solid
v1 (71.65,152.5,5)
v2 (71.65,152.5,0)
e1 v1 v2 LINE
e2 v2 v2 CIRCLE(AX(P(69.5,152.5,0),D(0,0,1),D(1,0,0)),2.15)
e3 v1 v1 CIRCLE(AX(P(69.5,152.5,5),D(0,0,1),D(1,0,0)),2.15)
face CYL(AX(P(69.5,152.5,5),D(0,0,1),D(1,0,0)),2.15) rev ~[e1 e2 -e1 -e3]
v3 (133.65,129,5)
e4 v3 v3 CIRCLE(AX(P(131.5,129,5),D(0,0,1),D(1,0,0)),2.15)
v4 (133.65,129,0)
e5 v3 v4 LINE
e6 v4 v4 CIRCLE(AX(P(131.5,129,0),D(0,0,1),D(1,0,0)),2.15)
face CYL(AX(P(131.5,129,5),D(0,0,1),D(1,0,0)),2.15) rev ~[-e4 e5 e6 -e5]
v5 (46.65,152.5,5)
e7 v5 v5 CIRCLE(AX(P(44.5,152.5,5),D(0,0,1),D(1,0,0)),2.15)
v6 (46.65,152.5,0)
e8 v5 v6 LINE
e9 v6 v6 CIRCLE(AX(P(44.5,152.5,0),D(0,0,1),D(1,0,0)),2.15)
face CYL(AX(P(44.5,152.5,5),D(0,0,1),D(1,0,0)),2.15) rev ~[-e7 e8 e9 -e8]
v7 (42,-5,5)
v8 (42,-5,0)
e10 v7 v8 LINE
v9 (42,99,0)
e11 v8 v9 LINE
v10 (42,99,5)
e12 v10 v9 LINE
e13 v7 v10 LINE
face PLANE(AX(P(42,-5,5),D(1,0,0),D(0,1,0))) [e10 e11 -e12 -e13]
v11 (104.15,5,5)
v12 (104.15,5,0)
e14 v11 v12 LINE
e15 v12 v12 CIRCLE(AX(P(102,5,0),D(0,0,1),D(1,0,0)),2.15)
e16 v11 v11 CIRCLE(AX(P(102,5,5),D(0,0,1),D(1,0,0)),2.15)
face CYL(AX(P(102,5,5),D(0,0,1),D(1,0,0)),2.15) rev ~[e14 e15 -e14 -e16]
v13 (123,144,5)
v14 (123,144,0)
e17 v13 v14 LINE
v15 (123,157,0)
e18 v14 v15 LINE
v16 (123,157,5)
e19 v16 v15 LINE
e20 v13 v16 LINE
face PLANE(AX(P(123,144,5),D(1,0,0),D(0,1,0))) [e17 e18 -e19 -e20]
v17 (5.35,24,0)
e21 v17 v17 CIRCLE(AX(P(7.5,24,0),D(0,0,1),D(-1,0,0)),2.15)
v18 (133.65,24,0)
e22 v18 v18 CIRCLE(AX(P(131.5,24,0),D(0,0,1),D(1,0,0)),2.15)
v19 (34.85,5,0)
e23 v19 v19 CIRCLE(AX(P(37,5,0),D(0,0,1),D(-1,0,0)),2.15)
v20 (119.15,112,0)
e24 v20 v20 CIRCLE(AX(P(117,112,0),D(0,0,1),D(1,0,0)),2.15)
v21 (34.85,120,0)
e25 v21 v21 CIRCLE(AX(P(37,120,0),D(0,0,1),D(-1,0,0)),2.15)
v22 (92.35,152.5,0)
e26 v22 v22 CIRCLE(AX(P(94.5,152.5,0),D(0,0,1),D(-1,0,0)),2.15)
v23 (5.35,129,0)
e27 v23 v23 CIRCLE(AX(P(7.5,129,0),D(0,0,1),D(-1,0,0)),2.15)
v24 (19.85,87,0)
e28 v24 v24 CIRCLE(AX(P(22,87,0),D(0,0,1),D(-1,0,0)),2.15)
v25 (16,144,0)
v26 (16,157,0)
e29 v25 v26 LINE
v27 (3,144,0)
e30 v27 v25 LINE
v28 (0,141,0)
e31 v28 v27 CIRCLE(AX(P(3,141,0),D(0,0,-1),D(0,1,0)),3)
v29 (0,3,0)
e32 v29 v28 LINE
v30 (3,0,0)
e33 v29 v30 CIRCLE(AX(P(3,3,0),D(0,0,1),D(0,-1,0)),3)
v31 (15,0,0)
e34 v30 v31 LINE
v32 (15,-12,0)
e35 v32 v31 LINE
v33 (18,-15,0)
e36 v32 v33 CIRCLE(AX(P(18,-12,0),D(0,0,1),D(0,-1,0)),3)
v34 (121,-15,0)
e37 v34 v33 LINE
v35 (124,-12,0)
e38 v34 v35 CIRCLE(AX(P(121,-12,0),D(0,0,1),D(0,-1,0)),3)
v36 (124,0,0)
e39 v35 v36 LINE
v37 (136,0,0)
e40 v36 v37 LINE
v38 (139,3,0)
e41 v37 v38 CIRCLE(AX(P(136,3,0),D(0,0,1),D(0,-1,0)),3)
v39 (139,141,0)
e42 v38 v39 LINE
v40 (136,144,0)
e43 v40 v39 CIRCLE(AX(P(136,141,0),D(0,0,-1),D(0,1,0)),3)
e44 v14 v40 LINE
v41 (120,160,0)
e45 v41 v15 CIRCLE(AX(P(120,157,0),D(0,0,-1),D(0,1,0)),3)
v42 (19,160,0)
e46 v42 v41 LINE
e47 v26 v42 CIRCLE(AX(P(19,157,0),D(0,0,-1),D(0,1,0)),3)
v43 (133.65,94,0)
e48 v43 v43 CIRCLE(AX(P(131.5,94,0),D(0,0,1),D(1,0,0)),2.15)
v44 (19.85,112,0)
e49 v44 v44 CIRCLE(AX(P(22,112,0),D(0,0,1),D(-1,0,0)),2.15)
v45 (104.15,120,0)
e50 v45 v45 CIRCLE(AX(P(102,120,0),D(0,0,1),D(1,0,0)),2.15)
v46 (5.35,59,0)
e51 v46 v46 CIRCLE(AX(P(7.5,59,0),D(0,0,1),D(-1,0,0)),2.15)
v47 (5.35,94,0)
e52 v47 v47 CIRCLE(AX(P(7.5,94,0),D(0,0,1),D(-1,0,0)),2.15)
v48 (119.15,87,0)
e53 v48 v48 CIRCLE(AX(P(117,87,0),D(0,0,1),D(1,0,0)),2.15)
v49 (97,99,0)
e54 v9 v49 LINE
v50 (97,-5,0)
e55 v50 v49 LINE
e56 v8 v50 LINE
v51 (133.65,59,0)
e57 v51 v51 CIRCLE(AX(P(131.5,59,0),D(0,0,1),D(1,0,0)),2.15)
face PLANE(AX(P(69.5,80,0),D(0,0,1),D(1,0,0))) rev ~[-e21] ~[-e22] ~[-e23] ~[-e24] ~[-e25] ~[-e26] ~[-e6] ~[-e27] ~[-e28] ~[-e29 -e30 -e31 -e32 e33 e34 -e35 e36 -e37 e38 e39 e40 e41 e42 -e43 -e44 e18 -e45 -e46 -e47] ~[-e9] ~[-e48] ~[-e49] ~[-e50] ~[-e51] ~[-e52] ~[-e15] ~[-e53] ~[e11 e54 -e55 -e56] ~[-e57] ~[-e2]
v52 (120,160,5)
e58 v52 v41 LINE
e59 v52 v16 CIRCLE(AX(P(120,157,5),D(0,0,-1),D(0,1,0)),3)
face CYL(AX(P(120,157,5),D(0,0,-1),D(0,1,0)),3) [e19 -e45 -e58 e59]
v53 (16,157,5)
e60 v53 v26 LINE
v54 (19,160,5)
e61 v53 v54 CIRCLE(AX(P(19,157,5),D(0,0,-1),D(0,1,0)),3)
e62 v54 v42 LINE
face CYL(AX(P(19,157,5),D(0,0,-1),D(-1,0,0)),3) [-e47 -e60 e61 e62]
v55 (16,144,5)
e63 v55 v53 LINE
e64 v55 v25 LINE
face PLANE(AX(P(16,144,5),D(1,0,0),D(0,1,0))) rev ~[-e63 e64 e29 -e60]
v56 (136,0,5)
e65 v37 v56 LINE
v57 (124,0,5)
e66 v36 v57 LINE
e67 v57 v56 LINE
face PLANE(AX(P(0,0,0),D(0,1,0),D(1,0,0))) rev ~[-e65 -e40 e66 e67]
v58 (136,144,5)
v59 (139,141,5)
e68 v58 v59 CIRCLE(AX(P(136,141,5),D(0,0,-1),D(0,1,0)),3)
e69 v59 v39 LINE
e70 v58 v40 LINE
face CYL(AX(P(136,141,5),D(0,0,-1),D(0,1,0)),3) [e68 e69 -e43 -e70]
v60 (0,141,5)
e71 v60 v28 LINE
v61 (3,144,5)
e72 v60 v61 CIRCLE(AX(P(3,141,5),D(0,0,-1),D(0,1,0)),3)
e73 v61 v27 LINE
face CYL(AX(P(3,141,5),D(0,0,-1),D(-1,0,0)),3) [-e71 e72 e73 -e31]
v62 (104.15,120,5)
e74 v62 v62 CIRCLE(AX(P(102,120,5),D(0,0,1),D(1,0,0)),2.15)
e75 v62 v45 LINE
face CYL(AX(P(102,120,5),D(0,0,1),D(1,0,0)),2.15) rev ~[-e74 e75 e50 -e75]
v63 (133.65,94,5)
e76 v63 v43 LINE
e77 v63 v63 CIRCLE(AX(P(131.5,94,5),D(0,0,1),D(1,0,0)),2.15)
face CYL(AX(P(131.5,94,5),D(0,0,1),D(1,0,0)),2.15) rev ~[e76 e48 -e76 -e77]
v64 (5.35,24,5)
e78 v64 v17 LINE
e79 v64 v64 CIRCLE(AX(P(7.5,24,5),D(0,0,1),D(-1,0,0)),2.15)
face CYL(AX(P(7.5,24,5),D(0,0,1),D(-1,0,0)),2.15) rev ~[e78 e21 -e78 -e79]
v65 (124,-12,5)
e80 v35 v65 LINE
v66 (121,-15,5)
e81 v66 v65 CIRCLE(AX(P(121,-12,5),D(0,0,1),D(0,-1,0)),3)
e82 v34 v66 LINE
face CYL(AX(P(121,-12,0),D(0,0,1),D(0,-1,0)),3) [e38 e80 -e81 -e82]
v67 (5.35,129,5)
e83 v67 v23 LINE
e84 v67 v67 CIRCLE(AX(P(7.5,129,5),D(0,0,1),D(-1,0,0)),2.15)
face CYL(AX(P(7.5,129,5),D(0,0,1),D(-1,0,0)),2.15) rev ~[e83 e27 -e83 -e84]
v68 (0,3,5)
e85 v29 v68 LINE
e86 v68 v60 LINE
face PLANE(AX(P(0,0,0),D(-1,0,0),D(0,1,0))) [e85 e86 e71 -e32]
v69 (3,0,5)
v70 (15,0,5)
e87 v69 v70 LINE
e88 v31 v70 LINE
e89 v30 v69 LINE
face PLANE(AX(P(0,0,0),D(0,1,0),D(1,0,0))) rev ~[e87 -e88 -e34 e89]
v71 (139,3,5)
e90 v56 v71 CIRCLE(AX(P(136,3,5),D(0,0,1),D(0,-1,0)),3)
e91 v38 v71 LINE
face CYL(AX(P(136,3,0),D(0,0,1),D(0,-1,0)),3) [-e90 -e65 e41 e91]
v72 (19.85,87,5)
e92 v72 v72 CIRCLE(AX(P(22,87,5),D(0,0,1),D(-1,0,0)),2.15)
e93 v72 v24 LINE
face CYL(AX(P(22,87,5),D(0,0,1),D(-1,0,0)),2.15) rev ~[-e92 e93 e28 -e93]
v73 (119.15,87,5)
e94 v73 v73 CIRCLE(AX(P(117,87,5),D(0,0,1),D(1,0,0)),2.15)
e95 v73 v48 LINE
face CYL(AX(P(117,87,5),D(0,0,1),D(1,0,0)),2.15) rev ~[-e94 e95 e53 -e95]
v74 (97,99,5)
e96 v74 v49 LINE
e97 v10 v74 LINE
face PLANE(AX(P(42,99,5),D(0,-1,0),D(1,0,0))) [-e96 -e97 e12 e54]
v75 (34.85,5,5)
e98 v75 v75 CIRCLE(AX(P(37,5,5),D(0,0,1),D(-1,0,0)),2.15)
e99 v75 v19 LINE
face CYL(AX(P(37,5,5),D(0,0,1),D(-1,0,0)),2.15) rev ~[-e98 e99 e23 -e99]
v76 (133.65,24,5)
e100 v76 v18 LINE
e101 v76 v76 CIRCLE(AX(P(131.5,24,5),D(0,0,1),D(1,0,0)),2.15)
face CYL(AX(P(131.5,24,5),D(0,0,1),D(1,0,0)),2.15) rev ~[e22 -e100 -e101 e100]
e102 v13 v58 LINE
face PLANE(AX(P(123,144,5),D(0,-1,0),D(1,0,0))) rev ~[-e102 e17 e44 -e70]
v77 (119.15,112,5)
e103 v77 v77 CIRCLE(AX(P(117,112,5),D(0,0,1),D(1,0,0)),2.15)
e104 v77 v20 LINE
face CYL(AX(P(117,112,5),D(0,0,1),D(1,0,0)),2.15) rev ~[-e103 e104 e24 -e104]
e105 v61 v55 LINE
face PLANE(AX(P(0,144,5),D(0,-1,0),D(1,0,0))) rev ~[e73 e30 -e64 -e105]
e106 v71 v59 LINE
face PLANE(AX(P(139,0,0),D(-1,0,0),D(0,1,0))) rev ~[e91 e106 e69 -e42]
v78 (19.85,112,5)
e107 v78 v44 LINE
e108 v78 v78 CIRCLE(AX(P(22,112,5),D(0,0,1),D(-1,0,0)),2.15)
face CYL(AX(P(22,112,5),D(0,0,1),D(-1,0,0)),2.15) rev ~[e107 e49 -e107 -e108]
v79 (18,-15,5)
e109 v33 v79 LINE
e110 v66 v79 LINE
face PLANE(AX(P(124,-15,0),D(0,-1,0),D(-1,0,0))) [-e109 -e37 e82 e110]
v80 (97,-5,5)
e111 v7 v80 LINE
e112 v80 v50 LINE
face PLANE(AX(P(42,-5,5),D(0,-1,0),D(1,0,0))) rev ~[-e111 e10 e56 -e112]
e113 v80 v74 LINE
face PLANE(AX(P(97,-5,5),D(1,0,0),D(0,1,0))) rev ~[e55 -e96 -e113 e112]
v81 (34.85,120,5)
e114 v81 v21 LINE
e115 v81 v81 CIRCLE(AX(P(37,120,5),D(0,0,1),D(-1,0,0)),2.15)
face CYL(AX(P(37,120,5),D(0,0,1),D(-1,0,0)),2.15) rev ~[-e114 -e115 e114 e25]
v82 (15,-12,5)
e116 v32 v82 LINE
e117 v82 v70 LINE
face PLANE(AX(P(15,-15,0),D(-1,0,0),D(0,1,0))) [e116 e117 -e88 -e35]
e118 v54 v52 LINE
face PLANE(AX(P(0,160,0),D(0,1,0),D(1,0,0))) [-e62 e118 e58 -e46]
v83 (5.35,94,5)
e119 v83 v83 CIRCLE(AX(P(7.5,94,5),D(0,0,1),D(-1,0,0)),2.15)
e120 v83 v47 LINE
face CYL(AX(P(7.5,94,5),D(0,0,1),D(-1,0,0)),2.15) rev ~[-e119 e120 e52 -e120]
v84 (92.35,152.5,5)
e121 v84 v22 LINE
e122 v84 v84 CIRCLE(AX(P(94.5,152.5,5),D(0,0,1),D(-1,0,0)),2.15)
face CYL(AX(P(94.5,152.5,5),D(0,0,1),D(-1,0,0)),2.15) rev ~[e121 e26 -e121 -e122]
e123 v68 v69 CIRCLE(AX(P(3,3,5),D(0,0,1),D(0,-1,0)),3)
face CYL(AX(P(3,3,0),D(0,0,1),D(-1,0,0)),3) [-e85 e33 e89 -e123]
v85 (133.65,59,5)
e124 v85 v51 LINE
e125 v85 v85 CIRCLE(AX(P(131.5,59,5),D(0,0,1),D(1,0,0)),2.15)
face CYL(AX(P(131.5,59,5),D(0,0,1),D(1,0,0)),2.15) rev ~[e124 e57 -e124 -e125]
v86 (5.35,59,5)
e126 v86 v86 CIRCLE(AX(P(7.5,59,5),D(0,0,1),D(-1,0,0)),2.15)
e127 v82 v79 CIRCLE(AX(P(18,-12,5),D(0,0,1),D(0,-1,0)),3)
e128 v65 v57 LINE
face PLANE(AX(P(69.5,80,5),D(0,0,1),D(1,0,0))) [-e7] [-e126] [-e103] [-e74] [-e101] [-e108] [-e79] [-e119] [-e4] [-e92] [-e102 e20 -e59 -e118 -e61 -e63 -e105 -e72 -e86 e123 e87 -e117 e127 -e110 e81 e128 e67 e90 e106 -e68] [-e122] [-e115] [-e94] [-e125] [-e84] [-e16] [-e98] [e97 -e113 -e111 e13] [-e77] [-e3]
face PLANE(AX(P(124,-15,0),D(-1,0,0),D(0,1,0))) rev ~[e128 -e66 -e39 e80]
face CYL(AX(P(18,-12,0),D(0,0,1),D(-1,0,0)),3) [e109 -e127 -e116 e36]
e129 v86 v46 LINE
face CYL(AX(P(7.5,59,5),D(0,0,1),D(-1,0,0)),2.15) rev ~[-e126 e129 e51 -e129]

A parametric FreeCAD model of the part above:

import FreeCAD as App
import Part
import Sketcher

V = App.Vector


def edges_at(feature, points):
    """Names of the edges that pass closest to the given points."""
    edges = feature.Shape.Edges
    near = lambda p: min(range(len(edges)), key=lambda i: edges[i].distToShape(Part.Vertex(*p))[0])
    return sorted({f"Edge{near(p) + 1}" for p in points})


def add_polygon(sketch, points):
    """Adds a closed chain of lines whose ends are joined by coincident constraints."""
    first, n = sketch.GeometryCount, len(points)
    for a, b in zip(points, points[1:] + points[:1]):
        sketch.addGeometry(Part.LineSegment(App.Vector(*a, 0), App.Vector(*b, 0)), False)
    for i in range(n):
        sketch.addConstraint(Sketcher.Constraint("Coincident", first + i, 2, first + (i + 1) % n, 1))

doc = App.newDocument("Part")
body = doc.addObject("PartDesign::Body", "Body")

# Sketch on XY plane
sketch1 = body.newObject("Sketcher::SketchObject", "Sketch")
sketch1.AttachmentSupport = (doc.getObject("XY_Plane"), [""])
sketch1.MapMode = "FlatFace"
add_polygon(sketch1, [(0, 160), (0, 0), (139, 0), (139, 160)])  # lines 0-3
sketch1.addConstraint(Sketcher.Constraint("Vertical", 0))
sketch1.addConstraint(Sketcher.Constraint("Horizontal", 1))
sketch1.addConstraint(Sketcher.Constraint("Vertical", 2))
sketch1.addConstraint(Sketcher.Constraint("Horizontal", 3))
sketch1.addConstraint(Sketcher.Constraint("Coincident", 0, 2, -1, 1))
sketch1.addConstraint(Sketcher.Constraint("DistanceX", 1, 1, 1, 2, 139.0))
sketch1.addConstraint(Sketcher.Constraint("DistanceY", 0, 2, 0, 1, 160.0))
pad1 = body.newObject("PartDesign::Pad", "Pad")
pad1.Profile = sketch1
pad1.Length = 5

# Sketch on XY plane
sketch2 = body.newObject("Sketcher::SketchObject", "Sketch001")
sketch2.AttachmentSupport = (doc.getObject("XY_Plane"), [""])
sketch2.MapMode = "FlatFace"
sketch2.AttachmentOffset = App.Placement(V(0, 0, 5), App.Rotation())
add_polygon(sketch2, [(123, 160), (123, 144), (139, 144), (139, 160)])  # lines 0-3
add_polygon(sketch2, [(0, 160), (0, 144), (16, 144), (16, 160)])  # lines 4-7
sketch2.addConstraint(Sketcher.Constraint("Vertical", 0))
sketch2.addConstraint(Sketcher.Constraint("Horizontal", 1))
sketch2.addConstraint(Sketcher.Constraint("Vertical", 2))
sketch2.addConstraint(Sketcher.Constraint("Horizontal", 3))
sketch2.addConstraint(Sketcher.Constraint("Vertical", 4))
sketch2.addConstraint(Sketcher.Constraint("Horizontal", 5))
sketch2.addConstraint(Sketcher.Constraint("Vertical", 6))
sketch2.addConstraint(Sketcher.Constraint("Horizontal", 7))
sketch2.addConstraint(Sketcher.Constraint("PointOnObject", 4, 2, -2))
sketch2.addConstraint(Sketcher.Constraint("Horizontal", 1, 2, 4, 2))
sketch2.addConstraint(Sketcher.Constraint("Horizontal", 3, 2, 6, 2))
sketch2.addConstraint(Sketcher.Constraint("Equal", 3, 5))
sketch2.addConstraint(Sketcher.Constraint("Equal", 7, 0))
sketch2.addConstraint(Sketcher.Constraint("DistanceX", 1, 1, 1, 2, 16.0))
sketch2.addConstraint(Sketcher.Constraint("DistanceX", -1, 1, 0, 2, 123.0))
sketch2.addConstraint(Sketcher.Constraint("DistanceY", -1, 1, 0, 2, 144.0))
pocket1 = body.newObject("PartDesign::Pocket", "Pocket")
pocket1.Profile = sketch2
pocket1.Length = 5

# Sketch on XY plane
sketch3 = body.newObject("Sketcher::SketchObject", "Sketch002")
sketch3.AttachmentSupport = (doc.getObject("XY_Plane"), [""])
sketch3.MapMode = "FlatFace"
sketch3.AttachmentOffset = App.Placement(V(0, 0, 5), App.Rotation())
sketch3.addGeometry(Part.Circle(V(69.5, 152.5, 0), V(0, 0, 1), 2.15), False)
sketch3.addGeometry(Part.Circle(V(44.5, 152.5, 0), V(0, 0, 1), 2.15), False)
sketch3.addGeometry(Part.Circle(V(94.5, 152.5, 0), V(0, 0, 1), 2.15), False)
sketch3.addConstraint(Sketcher.Constraint("Equal", 0, 1))
sketch3.addConstraint(Sketcher.Constraint("Equal", 1, 2))
sketch3.addConstraint(Sketcher.Constraint("Horizontal", 0, 3, 1, 3))
sketch3.addConstraint(Sketcher.Constraint("Horizontal", 1, 3, 2, 3))
sketch3.addConstraint(Sketcher.Constraint("Diameter", 0, 4.3))
sketch3.addConstraint(Sketcher.Constraint("DistanceX", 1, 3, 0, 3, 25.0))
sketch3.addConstraint(Sketcher.Constraint("DistanceX", 0, 3, 2, 3, 25.0))
sketch3.addConstraint(Sketcher.Constraint("DistanceX", -1, 1, 0, 3, 69.5))
sketch3.addConstraint(Sketcher.Constraint("DistanceY", -1, 1, 0, 3, 152.5))
pocket2 = body.newObject("PartDesign::Pocket", "Pocket001")
pocket2.Profile = sketch3
pocket2.Length = 5

# Sketch on XY plane
sketch4 = body.newObject("Sketcher::SketchObject", "Sketch003")
sketch4.AttachmentSupport = (doc.getObject("XY_Plane"), [""])
sketch4.MapMode = "FlatFace"
sketch4.AttachmentOffset = App.Placement(V(0, 0, 5), App.Rotation())
sketch4.addGeometry(Part.Circle(V(131.5, 129, 0), V(0, 0, 1), 2.15), False)
sketch4.addGeometry(Part.Circle(V(7.5, 129, 0), V(0, 0, 1), 2.15), False)
sketch4.addConstraint(Sketcher.Constraint("Equal", 0, 1))
sketch4.addConstraint(Sketcher.Constraint("Horizontal", 0, 3, 1, 3))
sketch4.addConstraint(Sketcher.Constraint("Diameter", 0, 4.3))
sketch4.addConstraint(Sketcher.Constraint("DistanceY", -1, 1, 0, 3, 129.0))
sketch4.addConstraint(Sketcher.Constraint("DistanceX", 1, 3, 0, 3, 124.0))
sketch4.addConstraint(Sketcher.Constraint("DistanceX", -1, 1, 0, 3, 131.5))
pocket3 = body.newObject("PartDesign::Pocket", "Pocket002")
pocket3.Profile = sketch4
pocket3.Length = 5
doc.recompute()

linearpattern = body.newObject("PartDesign::LinearPattern", "LinearPattern")
linearpattern.Originals = [pocket3]
linearpattern.Direction = (doc.getObject("Y_Axis"), [""])
linearpattern.Mode = "offset"
linearpattern.Offset = 35
linearpattern.Occurrences = 4
linearpattern.Reversed = True
body.Tip = linearpattern

# Sketch on XY plane
sketch5 = body.newObject("Sketcher::SketchObject", "Sketch004")
sketch5.AttachmentSupport = (doc.getObject("XY_Plane"), [""])
sketch5.MapMode = "FlatFace"
sketch5.AttachmentOffset = App.Placement(V(0, 0, 5), App.Rotation())
sketch5.addGeometry(Part.Circle(V(117, 112, 0), V(0, 0, 1), 2.15), False)
sketch5.addGeometry(Part.Circle(V(117, 87, 0), V(0, 0, 1), 2.15), False)
sketch5.addGeometry(Part.Circle(V(22, 87, 0), V(0, 0, 1), 2.15), False)
sketch5.addGeometry(Part.Circle(V(22, 112, 0), V(0, 0, 1), 2.15), False)
sketch5.addConstraint(Sketcher.Constraint("Equal", 0, 1))
sketch5.addConstraint(Sketcher.Constraint("Equal", 1, 2))
sketch5.addConstraint(Sketcher.Constraint("Equal", 2, 3))
sketch5.addConstraint(Sketcher.Constraint("Horizontal", 1, 3, 2, 3))
sketch5.addConstraint(Sketcher.Constraint("Horizontal", 0, 3, 3, 3))
sketch5.addConstraint(Sketcher.Constraint("Vertical", 0, 3, 1, 3))
sketch5.addConstraint(Sketcher.Constraint("Vertical", 2, 3, 3, 3))
sketch5.addConstraint(Sketcher.Constraint("Diameter", 0, 4.3))
sketch5.addConstraint(Sketcher.Constraint("DistanceX", -1, 1, 0, 3, 117.0))
sketch5.addConstraint(Sketcher.Constraint("DistanceY", -1, 1, 0, 3, 112.0))
sketch5.addConstraint(Sketcher.Constraint("DistanceY", -1, 1, 1, 3, 87.0))
sketch5.addConstraint(Sketcher.Constraint("DistanceX", -1, 1, 2, 3, 22.0))
pocket4 = body.newObject("PartDesign::Pocket", "Pocket003")
pocket4.Profile = sketch5
pocket4.Length = 5

# Sketch on XY plane
sketch6 = body.newObject("Sketcher::SketchObject", "Sketch005")
sketch6.AttachmentSupport = (doc.getObject("XY_Plane"), [""])
sketch6.MapMode = "FlatFace"
add_polygon(sketch6, [(124, 0), (124, -15), (15, -15), (15, 0)])  # lines 0-3
sketch6.addConstraint(Sketcher.Constraint("Vertical", 0))
sketch6.addConstraint(Sketcher.Constraint("Horizontal", 1))
sketch6.addConstraint(Sketcher.Constraint("Vertical", 2))
sketch6.addConstraint(Sketcher.Constraint("Horizontal", 3))
sketch6.addConstraint(Sketcher.Constraint("PointOnObject", 2, 2, -1))
sketch6.addConstraint(Sketcher.Constraint("DistanceX", 1, 2, 1, 1, 109.0))
sketch6.addConstraint(Sketcher.Constraint("DistanceY", 0, 2, 0, 1, 15.0))
sketch6.addConstraint(Sketcher.Constraint("DistanceX", -1, 1, 0, 2, 124.0))
pad2 = body.newObject("PartDesign::Pad", "Pad001")
pad2.Profile = sketch6
pad2.Length = 5

# Sketch on XY plane
sketch7 = body.newObject("Sketcher::SketchObject", "Sketch006")
sketch7.AttachmentSupport = (doc.getObject("XY_Plane"), [""])
sketch7.MapMode = "FlatFace"
sketch7.AttachmentOffset = App.Placement(V(0, 0, 5), App.Rotation())
add_polygon(sketch7, [(42, 99), (42, -5), (97, -5), (97, 99)])  # lines 0-3
sketch7.addConstraint(Sketcher.Constraint("Vertical", 0))
sketch7.addConstraint(Sketcher.Constraint("Horizontal", 1))
sketch7.addConstraint(Sketcher.Constraint("Vertical", 2))
sketch7.addConstraint(Sketcher.Constraint("Horizontal", 3))
sketch7.addConstraint(Sketcher.Constraint("DistanceX", 1, 1, 1, 2, 55.0))
sketch7.addConstraint(Sketcher.Constraint("DistanceY", 0, 2, 0, 1, 104.0))
sketch7.addConstraint(Sketcher.Constraint("DistanceX", -1, 1, 0, 2, 42.0))
sketch7.addConstraint(Sketcher.Constraint("DistanceY", 0, 2, -1, 1, 5.0))
pocket5 = body.newObject("PartDesign::Pocket", "Pocket004")
pocket5.Profile = sketch7
pocket5.Length = 5

# Sketch on XY plane
sketch8 = body.newObject("Sketcher::SketchObject", "Sketch007")
sketch8.AttachmentSupport = (doc.getObject("XY_Plane"), [""])
sketch8.MapMode = "FlatFace"
sketch8.AttachmentOffset = App.Placement(V(0, 0, 5), App.Rotation())
sketch8.addGeometry(Part.Circle(V(102, 5, 0), V(0, 0, 1), 2.15), False)
sketch8.addGeometry(Part.Circle(V(102, 120, 0), V(0, 0, 1), 2.15), False)
sketch8.addGeometry(Part.Circle(V(37, 120, 0), V(0, 0, 1), 2.15), False)
sketch8.addGeometry(Part.Circle(V(37, 5, 0), V(0, 0, 1), 2.15), False)
sketch8.addConstraint(Sketcher.Constraint("Equal", 0, 1))
sketch8.addConstraint(Sketcher.Constraint("Equal", 1, 2))
sketch8.addConstraint(Sketcher.Constraint("Equal", 2, 3))
sketch8.addConstraint(Sketcher.Constraint("Horizontal", 1, 3, 2, 3))
sketch8.addConstraint(Sketcher.Constraint("Horizontal", 0, 3, 3, 3))
sketch8.addConstraint(Sketcher.Constraint("Vertical", 0, 3, 1, 3))
sketch8.addConstraint(Sketcher.Constraint("Vertical", 2, 3, 3, 3))
sketch8.addConstraint(Sketcher.Constraint("Diameter", 0, 4.3))
sketch8.addConstraint(Sketcher.Constraint("DistanceX", -1, 1, 0, 3, 102.0))
sketch8.addConstraint(Sketcher.Constraint("DistanceY", -1, 1, 0, 3, 5.0))
sketch8.addConstraint(Sketcher.Constraint("DistanceY", -1, 1, 1, 3, 120.0))
sketch8.addConstraint(Sketcher.Constraint("DistanceX", -1, 1, 2, 3, 37.0))
pocket6 = body.newObject("PartDesign::Pocket", "Pocket005")
pocket6.Profile = sketch8
pocket6.Length = 5
doc.recompute()

fillet = body.newObject("PartDesign::Fillet", "Fillet")
fillet.Base = (pocket6, edges_at(pocket6, [
    (124, -15, 2.5),
    (15, -15, 2.5),
    (139, 144, 2.5),
    (123, 160, 2.5),
    (16, 160, 2.5),
    (0, 144, 2.5),
    (139, 0, 2.5),
    (0, 0, 2.5),
]))
fillet.Radius = 3

doc.recompute()
